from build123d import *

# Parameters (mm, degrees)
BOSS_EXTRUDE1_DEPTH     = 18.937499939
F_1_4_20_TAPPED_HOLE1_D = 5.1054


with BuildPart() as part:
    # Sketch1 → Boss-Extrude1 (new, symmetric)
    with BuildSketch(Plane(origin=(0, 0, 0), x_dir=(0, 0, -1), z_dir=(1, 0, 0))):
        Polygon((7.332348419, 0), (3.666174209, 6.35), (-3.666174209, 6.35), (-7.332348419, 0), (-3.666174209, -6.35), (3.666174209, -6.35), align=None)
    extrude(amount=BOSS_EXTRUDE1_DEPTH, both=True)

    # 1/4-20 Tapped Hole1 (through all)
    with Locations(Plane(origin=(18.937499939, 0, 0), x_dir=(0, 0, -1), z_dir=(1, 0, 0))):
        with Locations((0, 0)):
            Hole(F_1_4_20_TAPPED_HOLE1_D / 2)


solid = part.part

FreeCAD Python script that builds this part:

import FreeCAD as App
import Part
import Sketcher

V = App.Vector
Q = App.Units.Quantity

doc = App.newDocument("Part")
body = doc.addObject("PartDesign::Body", "Body")

sketch1 = body.newObject("Sketcher::SketchObject", "Sketch")
sketch1.AttachmentSupport = (doc.getObject("YZ_Plane"), [""])
sketch1.MapMode = "FlatFace"
sketch1.addGeometry([
    Part.LineSegment(V(0, -7, 0), V(6, -4, 0)),
    Part.LineSegment(V(6, -4, 0), V(6, 4, 0)),
    Part.LineSegment(V(6, 4, 0), V(0, 7, 0)),
    Part.LineSegment(V(0, 7, 0), V(-6, 4, 0)),
    Part.LineSegment(V(-6, 4, 0), V(-6, -4, 0)),
    Part.LineSegment(V(-6, -4, 0), V(0, -7, 0)),
], False)
sketch1.addConstraint([
    Sketcher.Constraint("Coincident", 0, 2, 1, 1),
    Sketcher.Constraint("Coincident", 1, 2, 2, 1),
    Sketcher.Constraint("Coincident", 2, 2, 3, 1),
    Sketcher.Constraint("Coincident", 3, 2, 4, 1),
    Sketcher.Constraint("Coincident", 4, 2, 5, 1),
    Sketcher.Constraint("Coincident", 5, 2, 0, 1),
    Sketcher.Constraint("Vertical", 1),
    Sketcher.Constraint("Vertical", 4),
    Sketcher.Constraint("Symmetric", 0, 2, 3, 2, -1, 1),
    Sketcher.Constraint("Symmetric", 2, 2, 5, 2, -1, 1),
    Sketcher.Constraint("PointOnObject", 2, 2, -2),
    Sketcher.Constraint("Parallel", 2, 5),
    Sketcher.Constraint("Horizontal", 1, 2, 3, 2),
    Sketcher.Constraint("Angle", 0, Q("30 deg")),
    Sketcher.Constraint("DistanceX", 3, 2, 1, 2, Q("0.5 in")),
    Sketcher.Constraint("DistanceY", 1, 1, 1, 2, 7.332348),
])
pad1 = body.newObject("PartDesign::Pad", "Pad")
pad1.Profile = sketch1
pad1.Length = 37.875
pad1.Midplane = True

sketch2 = body.newObject("Sketcher::SketchObject", "Sketch001")
sketch2.AttachmentSupport = (doc.getObject("YZ_Plane"), [""])
sketch2.MapMode = "FlatFace"
sketch2.AttachmentOffset = App.Placement(V(0, 0, 18.9375), App.Rotation())
sketch2.addGeometry(Part.Circle(V(0, 0, 0), V(0, 0, 1), 2.6), False)
sketch2.addConstraint([
    Sketcher.Constraint("Coincident", 0, 3, -1, 1),
    Sketcher.Constraint("Diameter", 0, Q("0.201 in")),
])
doc.recompute()
hole = body.newObject("PartDesign::Hole", "Hole")
hole.Profile = sketch2
hole.ThreadType = "None"
hole.Diameter = Q("0.201 in")
hole.DepthType = "ThroughAll"

doc.recompute()
